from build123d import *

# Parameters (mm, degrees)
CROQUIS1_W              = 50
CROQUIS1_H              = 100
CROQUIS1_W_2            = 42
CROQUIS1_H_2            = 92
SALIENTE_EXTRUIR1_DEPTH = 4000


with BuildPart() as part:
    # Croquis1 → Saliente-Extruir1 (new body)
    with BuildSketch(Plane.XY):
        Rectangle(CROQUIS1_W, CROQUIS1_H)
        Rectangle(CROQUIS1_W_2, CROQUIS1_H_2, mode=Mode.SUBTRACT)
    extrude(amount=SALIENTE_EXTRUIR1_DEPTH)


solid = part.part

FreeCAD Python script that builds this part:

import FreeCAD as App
import Part
import Sketcher
from FreeCAD import Vector
Q = App.Units.Quantity

doc = App.newDocument("Part")
params = doc.addObject("Spreadsheet::Sheet", "Params")
for row, (alias, value) in enumerate([
    ("sketch1_width", "50 mm"),
    ("sketch1_width2", "42 mm"),
    ("sketch1_height", "100 mm"),
    ("sketch1_height2", "92 mm"),
    ("pad1_length", "4000 mm"),
], start=1):
    params.set(f"A{row}", alias)
    params.set(f"B{row}", "=" + value)
    params.setAlias(f"B{row}", alias)

body = doc.addObject("PartDesign::Body", "Body")

# Sketch on XY plane
sketch1 = body.newObject("Sketcher::SketchObject", "Sketch")
sketch1.AttachmentSupport = (doc.getObject("XY_Plane"), [""])
sketch1.MapMode = "FlatFace"
sketch1.addGeometry([
    Part.LineSegment(Vector(-25, 50, 0), Vector(-25, -50, 0)),  # 0
    Part.LineSegment(Vector(-25, -50, 0), Vector(25, -50, 0)),  # 1
    Part.LineSegment(Vector(25, -50, 0), Vector(25, 50, 0)),  # 2
    Part.LineSegment(Vector(25, 50, 0), Vector(-25, 50, 0)),  # 3
    Part.LineSegment(Vector(21, -46, 0), Vector(-21, -46, 0)),  # 4
    Part.LineSegment(Vector(-21, -46, 0), Vector(-21, 46, 0)),  # 5
    Part.LineSegment(Vector(-21, 46, 0), Vector(21, 46, 0)),  # 6
    Part.LineSegment(Vector(21, 46, 0), Vector(21, -46, 0)),  # 7
], False)
sketch1.addConstraint([
    Sketcher.Constraint("Coincident", 0, 2, 1, 1),
    Sketcher.Constraint("Coincident", 1, 2, 2, 1),
    Sketcher.Constraint("Coincident", 2, 2, 3, 1),
    Sketcher.Constraint("Coincident", 3, 2, 0, 1),
    Sketcher.Constraint("Coincident", 4, 2, 5, 1),
    Sketcher.Constraint("Coincident", 5, 2, 6, 1),
    Sketcher.Constraint("Coincident", 6, 2, 7, 1),
    Sketcher.Constraint("Coincident", 7, 2, 4, 1),
    Sketcher.Constraint("Vertical", 0),
    Sketcher.Constraint("Horizontal", 1),
    Sketcher.Constraint("Vertical", 2),
    Sketcher.Constraint("Horizontal", 3),
    Sketcher.Constraint("Horizontal", 4),
    Sketcher.Constraint("Vertical", 5),
    Sketcher.Constraint("Horizontal", 6),
    Sketcher.Constraint("Vertical", 7),
    Sketcher.Constraint("Symmetric", 0, 2, 2, 2, -1, 1),
    Sketcher.Constraint("Symmetric", 4, 2, 6, 2, -1, 1),
    Sketcher.Constraint("DistanceX", 1, 1, 1, 2, Q("50 mm")),
    Sketcher.Constraint("DistanceX", 4, 2, 4, 1, Q("42 mm")),
    Sketcher.Constraint("DistanceY", 0, 2, 0, 1, Q("100 mm")),
    Sketcher.Constraint("DistanceY", 5, 1, 5, 2, Q("92 mm")),
])
sketch1.setExpression("Constraints[18]", "Params.sketch1_width")
sketch1.setExpression("Constraints[19]", "Params.sketch1_width2")
sketch1.setExpression("Constraints[20]", "Params.sketch1_height")
sketch1.setExpression("Constraints[21]", "Params.sketch1_height2")
pad1 = body.newObject("PartDesign::Pad", "Pad")
pad1.Profile = sketch1
pad1.setExpression("Length", "Params.pad1_length")

doc.recompute()
